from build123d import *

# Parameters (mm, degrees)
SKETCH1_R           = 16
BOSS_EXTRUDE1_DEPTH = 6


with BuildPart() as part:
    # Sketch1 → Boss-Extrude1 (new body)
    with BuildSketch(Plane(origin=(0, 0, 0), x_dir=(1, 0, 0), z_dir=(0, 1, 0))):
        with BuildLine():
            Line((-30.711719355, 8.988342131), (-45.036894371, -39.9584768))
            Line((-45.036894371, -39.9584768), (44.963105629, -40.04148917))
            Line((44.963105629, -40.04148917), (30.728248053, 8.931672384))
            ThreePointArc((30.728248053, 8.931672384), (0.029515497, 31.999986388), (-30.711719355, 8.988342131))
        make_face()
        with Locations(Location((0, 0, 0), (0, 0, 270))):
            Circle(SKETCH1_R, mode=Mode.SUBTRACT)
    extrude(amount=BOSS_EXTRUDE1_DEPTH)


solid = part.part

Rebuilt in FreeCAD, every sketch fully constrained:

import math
import FreeCAD as App
import Part
import Sketcher
from FreeCAD import Vector
Q = App.Units.Quantity

doc = App.newDocument("Part")
body = doc.addObject("PartDesign::Body", "Body")

# Sketch on XZ plane
sketch1 = doc.addObject("Sketcher::SketchObject", "Sketch")
body.addObject(sketch1)
sketch1.AttachmentSupport = (doc.XZ_Plane, [""])
sketch1.MapMode = "FlatFace"
sketch1.addGeometry(Part.LineSegment(Vector(-31, -9, 0), Vector(-45, 40, 0)), False)
sketch1.addGeometry(Part.LineSegment(Vector(-45, 40, 0), Vector(45, 40, 0)), False)
sketch1.addGeometry(Part.LineSegment(Vector(45, 40, 0), Vector(31, -9, 0)), False)
sketch1.addGeometry(Part.ArcOfCircle(Part.Circle(Vector(0, 0, 0), Vector(0, 0, 1), 32), math.radians(-164), math.radians(-16)), False)
sketch1.addGeometry(Part.Circle(Vector(0, 0, 0), Vector(0, 0, 1), 16), False)
sketch1.addConstraint(Sketcher.Constraint("Coincident", 0, 2, 1, 1))
sketch1.addConstraint(Sketcher.Constraint("Coincident", 1, 2, 2, 1))
sketch1.addConstraint(Sketcher.Constraint("Tangent", 2, 2, 3, 2))
sketch1.addConstraint(Sketcher.Constraint("Tangent", 3, 1, 0, 1))
sketch1.addConstraint(Sketcher.Constraint("Coincident", 3, 3, -1, 1))
sketch1.addConstraint(Sketcher.Constraint("Coincident", 4, 3, -1, 1))
sketch1.addConstraint(Sketcher.Constraint("Equal", 0, 2))
sketch1.addConstraint(Sketcher.Constraint("Diameter", 4, Q("32 mm")))
sketch1.addConstraint(Sketcher.Constraint("Radius", 3, Q("32 mm")))
sketch1.addConstraint(Sketcher.Constraint("DistanceX", 0, 2, 1, 2, Q("90 mm")))
sketch1.addConstraint(Sketcher.Constraint("DistanceY", -1, 1, 1, 2, Q("40.041489 mm")))
sketch1.addConstraint(Sketcher.Constraint("DistanceX", -1, 1, 2, 2, Q("30.728248 mm")))
pad1 = doc.addObject("PartDesign::Pad", "Pad")
body.addObject(pad1)
pad1.Profile = sketch1
pad1.Length = 6
pad1.Reversed = True

doc.recompute()
